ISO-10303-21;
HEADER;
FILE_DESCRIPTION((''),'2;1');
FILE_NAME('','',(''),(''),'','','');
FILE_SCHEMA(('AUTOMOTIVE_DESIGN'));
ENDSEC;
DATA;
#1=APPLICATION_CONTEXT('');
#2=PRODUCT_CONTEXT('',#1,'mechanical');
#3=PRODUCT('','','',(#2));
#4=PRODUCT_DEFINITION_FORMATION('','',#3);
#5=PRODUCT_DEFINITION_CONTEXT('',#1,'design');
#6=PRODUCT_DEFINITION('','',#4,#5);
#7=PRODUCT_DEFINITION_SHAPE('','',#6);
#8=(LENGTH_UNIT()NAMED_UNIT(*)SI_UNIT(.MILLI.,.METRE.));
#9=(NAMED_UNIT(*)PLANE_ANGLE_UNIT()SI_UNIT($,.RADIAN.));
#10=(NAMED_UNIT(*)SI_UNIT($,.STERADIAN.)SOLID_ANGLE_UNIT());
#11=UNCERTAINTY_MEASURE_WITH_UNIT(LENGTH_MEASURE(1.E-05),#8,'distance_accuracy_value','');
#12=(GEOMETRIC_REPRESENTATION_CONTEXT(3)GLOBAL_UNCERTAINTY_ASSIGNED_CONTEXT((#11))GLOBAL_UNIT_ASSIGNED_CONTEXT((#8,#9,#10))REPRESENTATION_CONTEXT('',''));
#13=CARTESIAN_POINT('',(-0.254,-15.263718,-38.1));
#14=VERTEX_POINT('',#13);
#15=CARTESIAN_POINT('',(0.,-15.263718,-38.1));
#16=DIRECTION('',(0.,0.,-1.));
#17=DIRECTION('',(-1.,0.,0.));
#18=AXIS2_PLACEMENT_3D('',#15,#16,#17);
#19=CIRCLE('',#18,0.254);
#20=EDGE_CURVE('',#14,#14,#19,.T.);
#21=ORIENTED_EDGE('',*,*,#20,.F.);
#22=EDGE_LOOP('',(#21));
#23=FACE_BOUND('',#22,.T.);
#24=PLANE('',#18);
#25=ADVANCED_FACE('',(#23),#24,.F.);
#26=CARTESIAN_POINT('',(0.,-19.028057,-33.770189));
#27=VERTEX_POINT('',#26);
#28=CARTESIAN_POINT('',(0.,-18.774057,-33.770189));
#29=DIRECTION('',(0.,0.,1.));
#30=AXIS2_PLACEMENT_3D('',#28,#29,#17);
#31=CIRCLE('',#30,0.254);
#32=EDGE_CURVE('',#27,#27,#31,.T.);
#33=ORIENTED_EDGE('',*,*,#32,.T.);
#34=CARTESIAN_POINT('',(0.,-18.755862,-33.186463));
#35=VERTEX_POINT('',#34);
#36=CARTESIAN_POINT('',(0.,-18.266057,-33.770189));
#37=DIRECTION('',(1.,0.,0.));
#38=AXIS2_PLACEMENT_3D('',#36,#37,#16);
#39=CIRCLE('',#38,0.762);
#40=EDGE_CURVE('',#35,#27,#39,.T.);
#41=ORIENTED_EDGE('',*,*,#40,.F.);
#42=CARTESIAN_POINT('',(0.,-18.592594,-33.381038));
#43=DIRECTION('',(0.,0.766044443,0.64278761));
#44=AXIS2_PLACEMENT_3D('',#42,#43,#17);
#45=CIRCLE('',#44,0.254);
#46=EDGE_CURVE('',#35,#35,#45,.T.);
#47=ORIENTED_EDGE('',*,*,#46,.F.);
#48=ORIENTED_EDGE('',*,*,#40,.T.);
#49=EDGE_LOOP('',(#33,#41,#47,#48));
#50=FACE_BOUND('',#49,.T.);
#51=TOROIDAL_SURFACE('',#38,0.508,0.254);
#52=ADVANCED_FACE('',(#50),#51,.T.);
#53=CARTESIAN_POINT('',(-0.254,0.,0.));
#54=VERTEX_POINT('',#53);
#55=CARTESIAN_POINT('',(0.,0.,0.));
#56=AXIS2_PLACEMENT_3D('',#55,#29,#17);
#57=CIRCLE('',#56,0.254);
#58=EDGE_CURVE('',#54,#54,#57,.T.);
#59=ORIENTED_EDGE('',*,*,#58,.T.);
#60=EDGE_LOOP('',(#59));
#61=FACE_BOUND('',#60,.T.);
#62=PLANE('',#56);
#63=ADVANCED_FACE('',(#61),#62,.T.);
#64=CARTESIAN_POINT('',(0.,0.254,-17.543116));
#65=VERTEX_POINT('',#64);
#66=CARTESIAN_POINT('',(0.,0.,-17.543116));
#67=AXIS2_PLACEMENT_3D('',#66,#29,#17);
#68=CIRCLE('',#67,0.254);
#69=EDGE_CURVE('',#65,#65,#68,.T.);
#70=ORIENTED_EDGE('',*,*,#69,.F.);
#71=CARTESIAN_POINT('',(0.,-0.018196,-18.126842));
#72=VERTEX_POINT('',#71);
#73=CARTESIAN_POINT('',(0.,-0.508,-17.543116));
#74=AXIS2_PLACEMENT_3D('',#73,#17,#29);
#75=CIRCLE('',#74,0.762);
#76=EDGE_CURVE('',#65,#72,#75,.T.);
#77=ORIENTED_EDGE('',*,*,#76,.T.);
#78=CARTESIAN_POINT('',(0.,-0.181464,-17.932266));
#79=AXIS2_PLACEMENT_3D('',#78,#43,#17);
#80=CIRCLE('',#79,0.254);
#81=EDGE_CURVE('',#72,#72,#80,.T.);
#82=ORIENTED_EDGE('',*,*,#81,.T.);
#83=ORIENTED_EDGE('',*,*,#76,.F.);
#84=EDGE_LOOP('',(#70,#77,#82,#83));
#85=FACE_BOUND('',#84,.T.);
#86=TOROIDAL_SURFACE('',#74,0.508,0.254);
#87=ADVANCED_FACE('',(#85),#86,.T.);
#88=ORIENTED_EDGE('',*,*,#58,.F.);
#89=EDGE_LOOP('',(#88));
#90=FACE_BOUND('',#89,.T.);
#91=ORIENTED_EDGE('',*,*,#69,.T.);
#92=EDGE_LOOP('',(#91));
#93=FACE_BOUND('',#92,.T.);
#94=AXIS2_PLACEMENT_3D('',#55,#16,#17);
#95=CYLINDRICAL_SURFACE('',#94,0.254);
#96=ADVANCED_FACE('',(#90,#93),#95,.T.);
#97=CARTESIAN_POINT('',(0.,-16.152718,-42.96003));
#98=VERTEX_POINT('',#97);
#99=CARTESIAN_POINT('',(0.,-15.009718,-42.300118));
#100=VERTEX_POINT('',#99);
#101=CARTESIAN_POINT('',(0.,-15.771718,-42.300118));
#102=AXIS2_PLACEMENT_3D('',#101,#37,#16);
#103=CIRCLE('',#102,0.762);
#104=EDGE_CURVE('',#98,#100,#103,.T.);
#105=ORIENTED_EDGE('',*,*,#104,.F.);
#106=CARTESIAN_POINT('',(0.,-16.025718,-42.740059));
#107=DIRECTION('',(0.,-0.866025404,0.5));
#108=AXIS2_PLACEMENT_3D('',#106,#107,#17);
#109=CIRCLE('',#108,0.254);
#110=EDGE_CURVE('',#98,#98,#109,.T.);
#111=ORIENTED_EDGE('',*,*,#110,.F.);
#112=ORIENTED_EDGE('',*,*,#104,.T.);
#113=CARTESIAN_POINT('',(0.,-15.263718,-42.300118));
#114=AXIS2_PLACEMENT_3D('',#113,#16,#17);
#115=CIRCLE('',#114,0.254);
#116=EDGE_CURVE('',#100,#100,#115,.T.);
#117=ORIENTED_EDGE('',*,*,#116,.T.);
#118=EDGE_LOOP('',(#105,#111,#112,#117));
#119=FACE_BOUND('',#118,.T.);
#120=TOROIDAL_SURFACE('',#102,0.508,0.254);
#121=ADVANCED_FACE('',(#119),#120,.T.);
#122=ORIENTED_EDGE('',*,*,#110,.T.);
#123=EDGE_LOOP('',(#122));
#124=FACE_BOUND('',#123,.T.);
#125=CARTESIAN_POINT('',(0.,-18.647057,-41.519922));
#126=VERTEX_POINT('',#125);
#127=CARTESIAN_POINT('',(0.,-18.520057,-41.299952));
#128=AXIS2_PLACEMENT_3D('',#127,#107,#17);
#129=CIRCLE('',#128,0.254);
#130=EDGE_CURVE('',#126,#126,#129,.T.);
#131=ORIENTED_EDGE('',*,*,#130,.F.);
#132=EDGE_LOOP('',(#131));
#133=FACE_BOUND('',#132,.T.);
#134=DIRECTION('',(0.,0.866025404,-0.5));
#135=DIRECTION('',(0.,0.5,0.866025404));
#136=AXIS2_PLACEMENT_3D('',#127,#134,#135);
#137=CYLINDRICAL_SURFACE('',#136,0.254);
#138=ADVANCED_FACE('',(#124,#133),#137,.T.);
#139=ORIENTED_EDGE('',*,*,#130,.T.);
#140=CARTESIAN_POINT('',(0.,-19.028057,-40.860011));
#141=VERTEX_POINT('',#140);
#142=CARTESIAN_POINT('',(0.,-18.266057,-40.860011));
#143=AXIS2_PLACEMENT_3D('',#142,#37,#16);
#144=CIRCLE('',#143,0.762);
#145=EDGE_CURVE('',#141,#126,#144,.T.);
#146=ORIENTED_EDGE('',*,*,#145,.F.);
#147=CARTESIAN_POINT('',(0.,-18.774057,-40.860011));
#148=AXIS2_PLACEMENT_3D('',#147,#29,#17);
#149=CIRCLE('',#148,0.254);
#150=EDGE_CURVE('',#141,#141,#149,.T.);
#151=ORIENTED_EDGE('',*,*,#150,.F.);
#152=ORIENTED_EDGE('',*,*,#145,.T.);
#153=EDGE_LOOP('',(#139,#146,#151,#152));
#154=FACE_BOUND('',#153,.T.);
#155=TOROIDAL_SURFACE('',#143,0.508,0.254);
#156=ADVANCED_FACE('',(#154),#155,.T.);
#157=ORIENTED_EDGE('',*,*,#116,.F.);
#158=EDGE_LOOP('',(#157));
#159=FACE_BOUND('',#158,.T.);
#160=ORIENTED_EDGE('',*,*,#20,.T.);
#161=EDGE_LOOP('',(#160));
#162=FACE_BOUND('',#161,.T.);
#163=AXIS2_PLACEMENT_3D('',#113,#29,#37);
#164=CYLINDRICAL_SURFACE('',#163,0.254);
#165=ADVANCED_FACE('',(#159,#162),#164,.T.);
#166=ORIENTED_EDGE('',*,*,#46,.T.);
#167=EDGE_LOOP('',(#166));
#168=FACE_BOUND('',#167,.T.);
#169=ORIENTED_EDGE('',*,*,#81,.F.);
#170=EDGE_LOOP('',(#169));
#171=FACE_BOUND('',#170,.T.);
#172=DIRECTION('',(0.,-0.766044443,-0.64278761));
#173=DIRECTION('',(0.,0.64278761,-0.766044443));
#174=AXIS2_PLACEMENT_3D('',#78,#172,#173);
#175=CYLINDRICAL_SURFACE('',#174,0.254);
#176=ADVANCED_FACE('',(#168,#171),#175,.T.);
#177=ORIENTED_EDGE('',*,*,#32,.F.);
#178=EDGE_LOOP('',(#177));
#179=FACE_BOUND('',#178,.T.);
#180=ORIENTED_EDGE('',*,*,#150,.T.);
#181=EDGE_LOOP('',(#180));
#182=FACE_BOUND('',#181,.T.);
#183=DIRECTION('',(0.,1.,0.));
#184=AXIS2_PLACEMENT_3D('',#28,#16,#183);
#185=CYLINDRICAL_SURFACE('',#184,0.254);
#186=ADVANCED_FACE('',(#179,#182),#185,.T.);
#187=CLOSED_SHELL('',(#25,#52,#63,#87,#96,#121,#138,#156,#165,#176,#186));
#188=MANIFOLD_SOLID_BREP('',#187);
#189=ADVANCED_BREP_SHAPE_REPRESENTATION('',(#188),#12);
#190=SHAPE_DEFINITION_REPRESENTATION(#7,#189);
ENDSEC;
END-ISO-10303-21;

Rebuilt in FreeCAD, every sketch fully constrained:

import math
import FreeCAD as App
import Part
import Sketcher
Q = App.Units.Quantity

doc = App.newDocument("Part")
params = doc.addObject("Spreadsheet::Sheet", "Params")
for row, (alias, value) in enumerate([
    ("sketch1_diameter", "0.02 in"),
    ("sketch2_radius", "0.02 in"),
], start=1):
    params.set(f"A{row}", alias)
    params.set(f"B{row}", "=" + value)
    params.setAlias(f"B{row}", alias)

body = doc.addObject("PartDesign::Body", "Body")

# Sketch on XY plane
sketch1 = body.newObject("Sketcher::SketchObject", "Sketch")
sketch1.AttachmentSupport = (doc.getObject("XY_Plane"), [""])
sketch1.MapMode = "FlatFace"
sketch1.addGeometry(Part.Circle(App.Vector(0, 0, 0), App.Vector(0, 0, 1), 0.25), False)
sketch1.addConstraint(Sketcher.Constraint("Coincident", 0, 3, -1, 1))
sketch1.addConstraint(Sketcher.Constraint("Diameter", 0, Q("0.02 in")))
sketch1.setExpression("Constraints[1]", "Params.sketch1_diameter")

# Sketch on YZ plane
sketch2 = body.newObject("Sketcher::SketchObject", "Sketch001")
sketch2.AttachmentSupport = (doc.getObject("YZ_Plane"), [""])
sketch2.MapMode = "FlatFace"
sketch2.addGeometry(Part.LineSegment(App.Vector(0, 0, 0), App.Vector(0, -17.54, 0)), False)
sketch2.addGeometry(Part.ArcOfCircle(Part.Circle(App.Vector(-0.51, -17.54, 0), App.Vector(0, 0, 1), 0.51), math.radians(-50), math.radians(0)), False)
sketch2.addGeometry(Part.LineSegment(App.Vector(-0.18, -17.93, 0), App.Vector(-18.59, -33.38, 0)), False)
sketch2.addGeometry(Part.ArcOfCircle(Part.Circle(App.Vector(-18.27, -33.77, 0), App.Vector(0, 0, 1), 0.51), math.radians(130), math.radians(180)), False)
sketch2.addGeometry(Part.LineSegment(App.Vector(-18.77, -33.77, 0), App.Vector(-18.77, -40.86, 0)), False)
sketch2.addGeometry(Part.ArcOfCircle(Part.Circle(App.Vector(-18.27, -40.86, 0), App.Vector(0, 0, 1), 0.51), math.radians(180), math.radians(240)), False)
sketch2.addGeometry(Part.LineSegment(App.Vector(-18.52, -41.3, 0), App.Vector(-16.03, -42.74, 0)), False)
sketch2.addGeometry(Part.ArcOfCircle(Part.Circle(App.Vector(-15.77, -42.3, 0), App.Vector(0, 0, 1), 0.51), math.radians(-120), math.radians(0)), False)
sketch2.addGeometry(Part.LineSegment(App.Vector(-15.26, -42.3, 0), App.Vector(-15.26, -38.1, 0)), False)
sketch2.addConstraint(Sketcher.Constraint("Tangent", 0, 2, 1, 2))
sketch2.addConstraint(Sketcher.Constraint("Tangent", 1, 1, 2, 1))
sketch2.addConstraint(Sketcher.Constraint("Tangent", 2, 2, 3, 1))
sketch2.addConstraint(Sketcher.Constraint("Tangent", 3, 2, 4, 1))
sketch2.addConstraint(Sketcher.Constraint("Tangent", 4, 2, 5, 1))
sketch2.addConstraint(Sketcher.Constraint("Tangent", 5, 2, 6, 1))
sketch2.addConstraint(Sketcher.Constraint("Tangent", 6, 2, 7, 1))
sketch2.addConstraint(Sketcher.Constraint("Tangent", 7, 2, 8, 1))
sketch2.addConstraint(Sketcher.Constraint("Vertical", 0))
sketch2.addConstraint(Sketcher.Constraint("Vertical", 4))
sketch2.addConstraint(Sketcher.Constraint("Vertical", 8))
sketch2.addConstraint(Sketcher.Constraint("Coincident", 0, 1, -1, 1))
sketch2.addConstraint(Sketcher.Constraint("Equal", 1, 3))
sketch2.addConstraint(Sketcher.Constraint("Equal", 3, 5))
sketch2.addConstraint(Sketcher.Constraint("Equal", 5, 7))
sketch2.addConstraint(Sketcher.Constraint("Radius", 1, Q("0.02 in")))
sketch2.addConstraint(Sketcher.Constraint("Angle", 2, Q("-140 deg")))
sketch2.addConstraint(Sketcher.Constraint("Angle", 6, Q("-30 deg")))
sketch2.addConstraint(Sketcher.Constraint("DistanceY", 8, 2, -1, 1, Q("1.5 in")))
sketch2.addConstraint(Sketcher.Constraint("DistanceY", 4, 2, 4, 1, Q("7.089822 mm")))
sketch2.addConstraint(Sketcher.Constraint("DistanceY", 8, 1, 8, 2, Q("4.200118 mm")))
sketch2.addConstraint(Sketcher.Constraint("DistanceY", 0, 2, 0, 1, Q("17.543116 mm")))
sketch2.addConstraint(Sketcher.Constraint("DistanceY", 3, 3, -1, 1, Q("33.770189 mm")))
sketch2.setExpression("Constraints[15]", "Params.sketch2_radius")
doc.recompute()

additivepipe = body.newObject("PartDesign::AdditivePipe", "AdditivePipe")
additivepipe.Profile = sketch1
additivepipe.Spine = (sketch2, ["Edge1", "Edge2", "Edge3", "Edge4", "Edge5", "Edge6", "Edge7", "Edge8", "Edge9"])

doc.recompute()
